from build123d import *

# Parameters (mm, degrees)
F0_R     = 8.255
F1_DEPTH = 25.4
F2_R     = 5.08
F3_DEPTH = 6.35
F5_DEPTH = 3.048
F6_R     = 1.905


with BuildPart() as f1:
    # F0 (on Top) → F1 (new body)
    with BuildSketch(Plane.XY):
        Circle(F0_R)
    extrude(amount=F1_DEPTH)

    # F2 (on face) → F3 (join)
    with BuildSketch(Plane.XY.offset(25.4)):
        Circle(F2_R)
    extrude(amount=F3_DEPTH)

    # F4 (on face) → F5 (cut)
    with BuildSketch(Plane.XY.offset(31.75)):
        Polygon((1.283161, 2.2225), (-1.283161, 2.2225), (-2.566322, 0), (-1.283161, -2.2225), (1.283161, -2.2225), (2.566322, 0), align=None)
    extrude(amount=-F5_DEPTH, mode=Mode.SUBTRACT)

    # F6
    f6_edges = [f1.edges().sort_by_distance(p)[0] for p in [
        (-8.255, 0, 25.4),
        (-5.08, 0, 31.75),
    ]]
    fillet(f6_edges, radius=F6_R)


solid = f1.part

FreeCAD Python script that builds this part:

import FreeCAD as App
import Part
import Sketcher
Q = App.Units.Quantity


def edges_at(feature, points):
    """Names of the edges that pass closest to the given points."""
    edges = feature.Shape.Edges
    near = lambda p: min(range(len(edges)), key=lambda i: edges[i].distToShape(Part.Vertex(*p))[0])
    return sorted({f"Edge{near(p) + 1}" for p in points})

doc = App.newDocument("Part")
body = doc.addObject("PartDesign::Body", "Body")

sketch1 = body.newObject("Sketcher::SketchObject", "Sketch")
sketch1.AttachmentSupport = (doc.getObject("XY_Plane"), [""])
sketch1.MapMode = "FlatFace"
sketch1.addGeometry(Part.Circle(App.Vector(0, 0, 0), App.Vector(0, 0, 1), 8.255), False)
sketch1.addConstraint([
    Sketcher.Constraint("Coincident", 0, 3, -1, 1),
    Sketcher.Constraint("Diameter", 0, Q("0.65 in")),
])
pad1 = body.newObject("PartDesign::Pad", "Pad")
pad1.Profile = sketch1
pad1.Length = Q("1 in")

sketch2 = body.newObject("Sketcher::SketchObject", "Sketch001")
sketch2.AttachmentSupport = (doc.getObject("XY_Plane"), [""])
sketch2.MapMode = "FlatFace"
sketch2.AttachmentOffset = App.Placement(App.Vector(0, 0, 1 * 25.4), App.Rotation())
sketch2.addGeometry(Part.Circle(App.Vector(0, 0, 0), App.Vector(0, 0, 1), 5.08), False)
sketch2.addConstraint([
    Sketcher.Constraint("Coincident", 0, 3, -1, 1),
    Sketcher.Constraint("Diameter", 0, Q("0.4 in")),
])
pad2 = body.newObject("PartDesign::Pad", "Pad001")
pad2.Profile = sketch2
pad2.Length = Q("0.25 in")

sketch3 = body.newObject("Sketcher::SketchObject", "Sketch002")
sketch3.AttachmentSupport = (doc.getObject("XY_Plane"), [""])
sketch3.MapMode = "FlatFace"
sketch3.AttachmentOffset = App.Placement(App.Vector(0, 0, 1.25 * 25.4), App.Rotation())
sketch3.addGeometry([
    Part.LineSegment(App.Vector(1.283161, 2.2225, 0), App.Vector(-1.283161, 2.2225, 0)),
    Part.LineSegment(App.Vector(-1.283161, 2.2225, 0), App.Vector(-2.566322, 0, 0)),
    Part.LineSegment(App.Vector(-2.566322, 0, 0), App.Vector(-1.283161, -2.2225, 0)),
    Part.LineSegment(App.Vector(-1.283161, -2.2225, 0), App.Vector(1.283161, -2.2225, 0)),
    Part.LineSegment(App.Vector(1.283161, -2.2225, 0), App.Vector(2.566322, 0, 0)),
    Part.LineSegment(App.Vector(2.566322, 0, 0), App.Vector(1.283161, 2.2225, 0)),
], False)
sketch3.addConstraint([
    Sketcher.Constraint("Coincident", 0, 2, 1, 1),
    Sketcher.Constraint("Coincident", 1, 2, 2, 1),
    Sketcher.Constraint("Coincident", 2, 2, 3, 1),
    Sketcher.Constraint("Coincident", 3, 2, 4, 1),
    Sketcher.Constraint("Coincident", 4, 2, 5, 1),
    Sketcher.Constraint("Coincident", 5, 2, 0, 1),
    Sketcher.Constraint("Horizontal", 0),
    Sketcher.Constraint("Horizontal", 3),
    Sketcher.Constraint("Symmetric", 0, 2, 3, 2, -1, 1),
    Sketcher.Constraint("Symmetric", 1, 2, 4, 2, -1, 1),
    Sketcher.Constraint("PointOnObject", 1, 2, -1),
    Sketcher.Constraint("Parallel", 2, 5),
    Sketcher.Constraint("Vertical", 0, 2, 2, 2),
    Sketcher.Constraint("Angle", 1, Q("-120.000001 deg")),
    Sketcher.Constraint("DistanceY", 2, 2, 0, 2, Q("0.175 in")),
    Sketcher.Constraint("DistanceX", 0, 2, 0, 1, 2.566322),
])
pocket1 = body.newObject("PartDesign::Pocket", "Pocket")
pocket1.Profile = sketch3
pocket1.Length = Q("0.12 in")
doc.recompute()

fillet = body.newObject("PartDesign::Fillet", "Fillet")
fillet.Base = (pocket1, edges_at(pocket1, [(-8.255, 0, 25.4), (-5.08, 0, 31.75)]))
fillet.Radius = Q("0.075 in")

doc.recompute()
